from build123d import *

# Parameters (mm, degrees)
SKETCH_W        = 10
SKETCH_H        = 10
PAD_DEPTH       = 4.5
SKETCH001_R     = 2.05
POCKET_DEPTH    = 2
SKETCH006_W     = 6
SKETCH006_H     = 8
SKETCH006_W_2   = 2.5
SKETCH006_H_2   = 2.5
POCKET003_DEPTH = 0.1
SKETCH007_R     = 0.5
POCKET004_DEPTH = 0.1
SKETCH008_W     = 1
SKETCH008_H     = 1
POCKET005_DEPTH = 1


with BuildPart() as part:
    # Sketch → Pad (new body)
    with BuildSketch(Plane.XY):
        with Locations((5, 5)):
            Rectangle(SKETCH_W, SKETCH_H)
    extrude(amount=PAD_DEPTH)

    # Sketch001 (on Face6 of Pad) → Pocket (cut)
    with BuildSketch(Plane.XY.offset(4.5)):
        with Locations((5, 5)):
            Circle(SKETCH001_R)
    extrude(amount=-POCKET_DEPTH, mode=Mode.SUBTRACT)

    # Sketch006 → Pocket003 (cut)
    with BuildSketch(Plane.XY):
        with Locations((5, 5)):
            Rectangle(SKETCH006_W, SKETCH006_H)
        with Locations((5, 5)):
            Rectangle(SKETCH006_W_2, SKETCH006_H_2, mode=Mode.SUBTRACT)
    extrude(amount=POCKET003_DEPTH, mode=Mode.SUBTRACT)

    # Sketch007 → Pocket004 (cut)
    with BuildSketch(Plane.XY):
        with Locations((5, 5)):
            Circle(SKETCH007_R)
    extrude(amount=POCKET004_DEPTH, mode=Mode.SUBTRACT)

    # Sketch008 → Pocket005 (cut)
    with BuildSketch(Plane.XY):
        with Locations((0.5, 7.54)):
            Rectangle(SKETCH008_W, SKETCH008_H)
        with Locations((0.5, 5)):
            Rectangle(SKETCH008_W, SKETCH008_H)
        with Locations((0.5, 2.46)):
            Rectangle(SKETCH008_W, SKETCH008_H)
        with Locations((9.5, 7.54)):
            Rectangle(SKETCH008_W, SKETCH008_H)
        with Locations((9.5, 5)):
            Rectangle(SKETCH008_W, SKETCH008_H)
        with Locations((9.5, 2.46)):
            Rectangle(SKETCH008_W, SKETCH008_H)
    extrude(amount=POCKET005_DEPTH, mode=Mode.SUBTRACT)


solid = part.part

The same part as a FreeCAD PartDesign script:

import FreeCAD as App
import Part
import Sketcher
from FreeCAD import Vector

doc = App.newDocument("Part")
body = doc.addObject("PartDesign::Body", "Body")

# Sketch on XY plane
sketch1 = body.newObject("Sketcher::SketchObject", "Sketch")
sketch1.AttachmentSupport = (doc.getObject("XY_Plane"), [""])
sketch1.MapMode = "FlatFace"
sketch1.addGeometry([
    Part.LineSegment(Vector(0, 10, 0), Vector(0, 0, 0)),
    Part.LineSegment(Vector(0, 0, 0), Vector(10, 0, 0)),
    Part.LineSegment(Vector(10, 0, 0), Vector(10, 10, 0)),
    Part.LineSegment(Vector(10, 10, 0), Vector(0, 10, 0)),
], False)
sketch1.addConstraint([
    Sketcher.Constraint("Coincident", 0, 2, 1, 1),
    Sketcher.Constraint("Coincident", 1, 2, 2, 1),
    Sketcher.Constraint("Coincident", 2, 2, 3, 1),
    Sketcher.Constraint("Coincident", 3, 2, 0, 1),
    Sketcher.Constraint("Vertical", 0),
    Sketcher.Constraint("Horizontal", 1),
    Sketcher.Constraint("Vertical", 2),
    Sketcher.Constraint("Horizontal", 3),
    Sketcher.Constraint("Coincident", 0, 2, -1, 1),
    Sketcher.Constraint("Equal", 3, 0),
    Sketcher.Constraint("DistanceX", 1, 1, 1, 2, 10.0),
])
pad1 = body.newObject("PartDesign::Pad", "Pad")
pad1.Profile = sketch1
pad1.Length = 4.5

# Sketch on XY plane
sketch2 = body.newObject("Sketcher::SketchObject", "Sketch001")
sketch2.AttachmentSupport = (doc.getObject("XY_Plane"), [""])
sketch2.MapMode = "FlatFace"
sketch2.AttachmentOffset = App.Placement(Vector(0, 0, 4.5), App.Rotation())
sketch2.addGeometry(Part.Circle(Vector(5, 5, 0), Vector(0, 0, 1), 2.05), False)
sketch2.addConstraint([
    Sketcher.Constraint("Diameter", 0, 4.1),
    Sketcher.Constraint("DistanceX", -1, 1, 0, 3, 5.0),
    Sketcher.Constraint("DistanceY", -1, 1, 0, 3, 5.0),
])
pocket1 = body.newObject("PartDesign::Pocket", "Pocket")
pocket1.Profile = sketch2
pocket1.Length = 2

# Sketch on XY plane
sketch3 = body.newObject("Sketcher::SketchObject", "Sketch002")
sketch3.AttachmentSupport = (doc.getObject("XY_Plane"), [""])
sketch3.MapMode = "FlatFace"
sketch3.addGeometry([
    Part.LineSegment(Vector(2, 9, 0), Vector(2, 1, 0)),  # 0
    Part.LineSegment(Vector(2, 1, 0), Vector(8, 1, 0)),  # 1
    Part.LineSegment(Vector(8, 1, 0), Vector(8, 9, 0)),  # 2
    Part.LineSegment(Vector(8, 9, 0), Vector(2, 9, 0)),  # 3
    Part.LineSegment(Vector(6.25, 3.75, 0), Vector(3.75, 3.75, 0)),  # 4
    Part.LineSegment(Vector(3.75, 3.75, 0), Vector(3.75, 6.25, 0)),  # 5
    Part.LineSegment(Vector(3.75, 6.25, 0), Vector(6.25, 6.25, 0)),  # 6
    Part.LineSegment(Vector(6.25, 6.25, 0), Vector(6.25, 3.75, 0)),  # 7
], False)
sketch3.addConstraint([
    Sketcher.Constraint("Coincident", 0, 2, 1, 1),
    Sketcher.Constraint("Coincident", 1, 2, 2, 1),
    Sketcher.Constraint("Coincident", 2, 2, 3, 1),
    Sketcher.Constraint("Coincident", 3, 2, 0, 1),
    Sketcher.Constraint("Coincident", 4, 2, 5, 1),
    Sketcher.Constraint("Coincident", 5, 2, 6, 1),
    Sketcher.Constraint("Coincident", 6, 2, 7, 1),
    Sketcher.Constraint("Coincident", 7, 2, 4, 1),
    Sketcher.Constraint("Vertical", 0),
    Sketcher.Constraint("Horizontal", 1),
    Sketcher.Constraint("Vertical", 2),
    Sketcher.Constraint("Horizontal", 3),
    Sketcher.Constraint("Horizontal", 4),
    Sketcher.Constraint("Vertical", 5),
    Sketcher.Constraint("Horizontal", 6),
    Sketcher.Constraint("Vertical", 7),
    Sketcher.Constraint("Equal", 6, 5),
    Sketcher.Constraint("DistanceX", 1, 1, 1, 2, 6.0),
    Sketcher.Constraint("DistanceY", 0, 2, 0, 1, 8.0),
    Sketcher.Constraint("DistanceX", 4, 2, 4, 1, 2.5),
    Sketcher.Constraint("DistanceX", -1, 1, 0, 2, 2.0),
    Sketcher.Constraint("DistanceY", -1, 1, 0, 2, 1.0),
    Sketcher.Constraint("DistanceX", -1, 1, 4, 2, 3.75),
    Sketcher.Constraint("DistanceY", -1, 1, 4, 2, 3.75),
])
pocket2 = body.newObject("PartDesign::Pocket", "Pocket001")
pocket2.Profile = sketch3
pocket2.Length = 0.1
pocket2.Reversed = True

# Sketch on XY plane
sketch4 = body.newObject("Sketcher::SketchObject", "Sketch003")
sketch4.AttachmentSupport = (doc.getObject("XY_Plane"), [""])
sketch4.MapMode = "FlatFace"
sketch4.addGeometry(Part.Circle(Vector(5, 5, 0), Vector(0, 0, 1), 0.5), False)
sketch4.addConstraint([
    Sketcher.Constraint("Diameter", 0, 1.0),
    Sketcher.Constraint("DistanceX", -1, 1, 0, 3, 5.0),
    Sketcher.Constraint("DistanceY", -1, 1, 0, 3, 5.0),
])
pocket3 = body.newObject("PartDesign::Pocket", "Pocket002")
pocket3.Profile = sketch4
pocket3.Length = 0.1
pocket3.Reversed = True

# Sketch on XY plane
sketch5 = body.newObject("Sketcher::SketchObject", "Sketch004")
sketch5.AttachmentSupport = (doc.getObject("XY_Plane"), [""])
sketch5.MapMode = "FlatFace"
sketch5.addGeometry([
    Part.LineSegment(Vector(0, 8.04, 0), Vector(0, 7.04, 0)),  # 0
    Part.LineSegment(Vector(0, 7.04, 0), Vector(1, 7.04, 0)),  # 1
    Part.LineSegment(Vector(1, 7.04, 0), Vector(1, 8.04, 0)),  # 2
    Part.LineSegment(Vector(1, 8.04, 0), Vector(0, 8.04, 0)),  # 3
    Part.LineSegment(Vector(0, 5.5, 0), Vector(0, 4.5, 0)),  # 4
    Part.LineSegment(Vector(0, 4.5, 0), Vector(1, 4.5, 0)),  # 5
    Part.LineSegment(Vector(1, 4.5, 0), Vector(1, 5.5, 0)),  # 6
    Part.LineSegment(Vector(1, 5.5, 0), Vector(0, 5.5, 0)),  # 7
    Part.LineSegment(Vector(0, 2.96, 0), Vector(0, 1.96, 0)),  # 8
    Part.LineSegment(Vector(0, 1.96, 0), Vector(1, 1.96, 0)),  # 9
    Part.LineSegment(Vector(1, 1.96, 0), Vector(1, 2.96, 0)),  # 10
    Part.LineSegment(Vector(1, 2.96, 0), Vector(0, 2.96, 0)),  # 11
    Part.LineSegment(Vector(9, 8.04, 0), Vector(9, 7.04, 0)),  # 12
    Part.LineSegment(Vector(9, 7.04, 0), Vector(10, 7.04, 0)),  # 13
    Part.LineSegment(Vector(10, 7.04, 0), Vector(10, 8.04, 0)),  # 14
    Part.LineSegment(Vector(10, 8.04, 0), Vector(9, 8.04, 0)),  # 15
    Part.LineSegment(Vector(9, 5.5, 0), Vector(9, 4.5, 0)),  # 16
    Part.LineSegment(Vector(9, 4.5, 0), Vector(10, 4.5, 0)),  # 17
    Part.LineSegment(Vector(10, 4.5, 0), Vector(10, 5.5, 0)),  # 18
    Part.LineSegment(Vector(10, 5.5, 0), Vector(9, 5.5, 0)),  # 19
    Part.LineSegment(Vector(9, 2.96, 0), Vector(9, 1.96, 0)),  # 20
    Part.LineSegment(Vector(9, 1.96, 0), Vector(10, 1.96, 0)),  # 21
    Part.LineSegment(Vector(10, 1.96, 0), Vector(10, 2.96, 0)),  # 22
    Part.LineSegment(Vector(10, 2.96, 0), Vector(9, 2.96, 0)),  # 23
], False)
sketch5.addConstraint([
    Sketcher.Constraint("Coincident", 0, 2, 1, 1),
    Sketcher.Constraint("Coincident", 1, 2, 2, 1),
    Sketcher.Constraint("Coincident", 2, 2, 3, 1),
    Sketcher.Constraint("Coincident", 3, 2, 0, 1),
    Sketcher.Constraint("Coincident", 4, 2, 5, 1),
    Sketcher.Constraint("Coincident", 5, 2, 6, 1),
    Sketcher.Constraint("Coincident", 6, 2, 7, 1),
    Sketcher.Constraint("Coincident", 7, 2, 4, 1),
    Sketcher.Constraint("Coincident", 8, 2, 9, 1),
    Sketcher.Constraint("Coincident", 9, 2, 10, 1),
    Sketcher.Constraint("Coincident", 10, 2, 11, 1),
    Sketcher.Constraint("Coincident", 11, 2, 8, 1),
    Sketcher.Constraint("Coincident", 12, 2, 13, 1),
    Sketcher.Constraint("Coincident", 13, 2, 14, 1),
    Sketcher.Constraint("Coincident", 14, 2, 15, 1),
    Sketcher.Constraint("Coincident", 15, 2, 12, 1),
    Sketcher.Constraint("Coincident", 16, 2, 17, 1),
    Sketcher.Constraint("Coincident", 17, 2, 18, 1),
    Sketcher.Constraint("Coincident", 18, 2, 19, 1),
    Sketcher.Constraint("Coincident", 19, 2, 16, 1),
    Sketcher.Constraint("Coincident", 20, 2, 21, 1),
    Sketcher.Constraint("Coincident", 21, 2, 22, 1),
    Sketcher.Constraint("Coincident", 22, 2, 23, 1),
    Sketcher.Constraint("Coincident", 23, 2, 20, 1),
    Sketcher.Constraint("Vertical", 0),
    Sketcher.Constraint("Horizontal", 1),
    Sketcher.Constraint("Vertical", 2),
    Sketcher.Constraint("Horizontal", 3),
    Sketcher.Constraint("Vertical", 4),
    Sketcher.Constraint("Horizontal", 5),
    Sketcher.Constraint("Vertical", 6),
    Sketcher.Constraint("Horizontal", 7),
    Sketcher.Constraint("Vertical", 8),
    Sketcher.Constraint("Horizontal", 9),
    Sketcher.Constraint("Vertical", 10),
    Sketcher.Constraint("Horizontal", 11),
    Sketcher.Constraint("Vertical", 12),
    Sketcher.Constraint("Horizontal", 13),
    Sketcher.Constraint("Vertical", 14),
    Sketcher.Constraint("Horizontal", 15),
    Sketcher.Constraint("Vertical", 16),
    Sketcher.Constraint("Horizontal", 17),
    Sketcher.Constraint("Vertical", 18),
    Sketcher.Constraint("Horizontal", 19),
    Sketcher.Constraint("Vertical", 20),
    Sketcher.Constraint("Horizontal", 21),
    Sketcher.Constraint("Vertical", 22),
    Sketcher.Constraint("Horizontal", 23),
    Sketcher.Constraint("PointOnObject", 0, 2, -2),
    Sketcher.Constraint("PointOnObject", 4, 2, -2),
    Sketcher.Constraint("PointOnObject", 8, 2, -2),
    Sketcher.Constraint("Horizontal", 1, 2, 12, 2),
    Sketcher.Constraint("Horizontal", 3, 2, 14, 2),
    Sketcher.Constraint("Horizontal", 5, 2, 16, 2),
    Sketcher.Constraint("Horizontal", 7, 2, 18, 2),
    Sketcher.Constraint("Horizontal", 9, 2, 20, 2),
    Sketcher.Constraint("Horizontal", 11, 2, 22, 2),
    Sketcher.Constraint("Vertical", 2, 2, 5, 2),
    Sketcher.Constraint("Vertical", 6, 2, 9, 2),
    Sketcher.Constraint("Vertical", 15, 2, 16, 2),
    Sketcher.Constraint("Vertical", 14, 2, 17, 2),
    Sketcher.Constraint("Vertical", 19, 2, 20, 2),
    Sketcher.Constraint("Vertical", 18, 2, 21, 2),
    Sketcher.Constraint("Equal", 11, 13),
    Sketcher.Constraint("Equal", 23, 0),
    Sketcher.Constraint("Equal", 2, 4),
    Sketcher.Constraint("Equal", 6, 8),
    Sketcher.Constraint("DistanceX", 1, 1, 1, 2, 1.0),
    Sketcher.Constraint("DistanceX", -1, 1, 12, 2, 9.0),
    Sketcher.Constraint("DistanceY", -1, 1, 4, 2, 4.5),
    Sketcher.Constraint("DistanceY", -1, 1, 0, 2, 7.04),
    Sketcher.Constraint("DistanceY", -1, 1, 8, 2, 1.96),
])
pocket4 = body.newObject("PartDesign::Pocket", "Pocket003")
pocket4.Profile = sketch5
pocket4.Length = 1
pocket4.Reversed = True

doc.recompute()
